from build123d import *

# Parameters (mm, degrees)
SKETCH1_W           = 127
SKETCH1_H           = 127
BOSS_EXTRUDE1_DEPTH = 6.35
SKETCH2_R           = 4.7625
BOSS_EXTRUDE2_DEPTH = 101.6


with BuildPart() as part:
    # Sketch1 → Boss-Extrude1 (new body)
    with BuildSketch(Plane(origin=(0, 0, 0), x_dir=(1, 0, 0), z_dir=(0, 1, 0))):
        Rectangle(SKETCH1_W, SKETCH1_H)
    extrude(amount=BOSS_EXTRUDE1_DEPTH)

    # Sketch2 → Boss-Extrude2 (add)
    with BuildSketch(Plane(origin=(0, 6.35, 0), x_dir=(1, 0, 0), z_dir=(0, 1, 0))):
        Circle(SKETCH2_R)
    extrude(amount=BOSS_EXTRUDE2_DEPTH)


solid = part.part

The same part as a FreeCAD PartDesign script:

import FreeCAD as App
import Part
import Sketcher

V = App.Vector
Q = App.Units.Quantity


def add_polygon(sketch, points):
    """Adds a closed chain of lines whose ends are joined by coincident constraints."""
    first, n = sketch.GeometryCount, len(points)
    for a, b in zip(points, points[1:] + points[:1]):
        sketch.addGeometry(Part.LineSegment(App.Vector(*a, 0), App.Vector(*b, 0)), False)
    for i in range(n):
        sketch.addConstraint(Sketcher.Constraint("Coincident", first + i, 2, first + (i + 1) % n, 1))

doc = App.newDocument("Part")
params = doc.addObject("Spreadsheet::Sheet", "Params")
for row, (alias, value) in enumerate([
    ("sketch1_width", "5 in"),
    ("pad1_length", "0.25 in"),
    ("sketch2_diameter", "0.375 in"),
    ("pad2_length", "4 in"),
], start=1):
    params.set(f"A{row}", alias)
    params.set(f"B{row}", "=" + value)
    params.setAlias(f"B{row}", alias)

body = doc.addObject("PartDesign::Body", "Body")

# Sketch on XZ plane
sketch1 = body.newObject("Sketcher::SketchObject", "Sketch")
sketch1.AttachmentSupport = (doc.getObject("XZ_Plane"), [""])
sketch1.MapMode = "FlatFace"
add_polygon(sketch1, [(-64, -64), (-64, 64), (64, 64), (64, -64)])  # lines 0-3
sketch1.addConstraint(Sketcher.Constraint("Vertical", 0))
sketch1.addConstraint(Sketcher.Constraint("Horizontal", 1))
sketch1.addConstraint(Sketcher.Constraint("Vertical", 2))
sketch1.addConstraint(Sketcher.Constraint("Horizontal", 3))
sketch1.addConstraint(Sketcher.Constraint("Symmetric", 0, 2, 2, 2, -1, 1))
sketch1.addConstraint(Sketcher.Constraint("Equal", 3, 0))
sketch1.addConstraint(Sketcher.Constraint("DistanceX", 1, 1, 1, 2, Q("5 in")))
sketch1.setExpression("Constraints[10]", "Params.sketch1_width")
pad1 = body.newObject("PartDesign::Pad", "Pad")
pad1.Profile = sketch1
pad1.setExpression("Length", "Params.pad1_length")
pad1.Reversed = True

# Sketch on XZ plane
sketch2 = body.newObject("Sketcher::SketchObject", "Sketch001")
sketch2.AttachmentSupport = (doc.getObject("XZ_Plane"), [""])
sketch2.MapMode = "FlatFace"
sketch2.AttachmentOffset = App.Placement(V(0, 0, -0.25 * 25.4), App.Rotation())
sketch2.addGeometry(Part.Circle(V(0, 0, 0), V(0, 0, 1), 4.8), False)
sketch2.addConstraint(Sketcher.Constraint("Coincident", 0, 3, -1, 1))
sketch2.addConstraint(Sketcher.Constraint("Diameter", 0, Q("0.375 in")))
sketch2.setExpression("Constraints[1]", "Params.sketch2_diameter")
pad2 = body.newObject("PartDesign::Pad", "Pad001")
pad2.Profile = sketch2
pad2.setExpression("Length", "Params.pad2_length")
pad2.Reversed = True

doc.recompute()
